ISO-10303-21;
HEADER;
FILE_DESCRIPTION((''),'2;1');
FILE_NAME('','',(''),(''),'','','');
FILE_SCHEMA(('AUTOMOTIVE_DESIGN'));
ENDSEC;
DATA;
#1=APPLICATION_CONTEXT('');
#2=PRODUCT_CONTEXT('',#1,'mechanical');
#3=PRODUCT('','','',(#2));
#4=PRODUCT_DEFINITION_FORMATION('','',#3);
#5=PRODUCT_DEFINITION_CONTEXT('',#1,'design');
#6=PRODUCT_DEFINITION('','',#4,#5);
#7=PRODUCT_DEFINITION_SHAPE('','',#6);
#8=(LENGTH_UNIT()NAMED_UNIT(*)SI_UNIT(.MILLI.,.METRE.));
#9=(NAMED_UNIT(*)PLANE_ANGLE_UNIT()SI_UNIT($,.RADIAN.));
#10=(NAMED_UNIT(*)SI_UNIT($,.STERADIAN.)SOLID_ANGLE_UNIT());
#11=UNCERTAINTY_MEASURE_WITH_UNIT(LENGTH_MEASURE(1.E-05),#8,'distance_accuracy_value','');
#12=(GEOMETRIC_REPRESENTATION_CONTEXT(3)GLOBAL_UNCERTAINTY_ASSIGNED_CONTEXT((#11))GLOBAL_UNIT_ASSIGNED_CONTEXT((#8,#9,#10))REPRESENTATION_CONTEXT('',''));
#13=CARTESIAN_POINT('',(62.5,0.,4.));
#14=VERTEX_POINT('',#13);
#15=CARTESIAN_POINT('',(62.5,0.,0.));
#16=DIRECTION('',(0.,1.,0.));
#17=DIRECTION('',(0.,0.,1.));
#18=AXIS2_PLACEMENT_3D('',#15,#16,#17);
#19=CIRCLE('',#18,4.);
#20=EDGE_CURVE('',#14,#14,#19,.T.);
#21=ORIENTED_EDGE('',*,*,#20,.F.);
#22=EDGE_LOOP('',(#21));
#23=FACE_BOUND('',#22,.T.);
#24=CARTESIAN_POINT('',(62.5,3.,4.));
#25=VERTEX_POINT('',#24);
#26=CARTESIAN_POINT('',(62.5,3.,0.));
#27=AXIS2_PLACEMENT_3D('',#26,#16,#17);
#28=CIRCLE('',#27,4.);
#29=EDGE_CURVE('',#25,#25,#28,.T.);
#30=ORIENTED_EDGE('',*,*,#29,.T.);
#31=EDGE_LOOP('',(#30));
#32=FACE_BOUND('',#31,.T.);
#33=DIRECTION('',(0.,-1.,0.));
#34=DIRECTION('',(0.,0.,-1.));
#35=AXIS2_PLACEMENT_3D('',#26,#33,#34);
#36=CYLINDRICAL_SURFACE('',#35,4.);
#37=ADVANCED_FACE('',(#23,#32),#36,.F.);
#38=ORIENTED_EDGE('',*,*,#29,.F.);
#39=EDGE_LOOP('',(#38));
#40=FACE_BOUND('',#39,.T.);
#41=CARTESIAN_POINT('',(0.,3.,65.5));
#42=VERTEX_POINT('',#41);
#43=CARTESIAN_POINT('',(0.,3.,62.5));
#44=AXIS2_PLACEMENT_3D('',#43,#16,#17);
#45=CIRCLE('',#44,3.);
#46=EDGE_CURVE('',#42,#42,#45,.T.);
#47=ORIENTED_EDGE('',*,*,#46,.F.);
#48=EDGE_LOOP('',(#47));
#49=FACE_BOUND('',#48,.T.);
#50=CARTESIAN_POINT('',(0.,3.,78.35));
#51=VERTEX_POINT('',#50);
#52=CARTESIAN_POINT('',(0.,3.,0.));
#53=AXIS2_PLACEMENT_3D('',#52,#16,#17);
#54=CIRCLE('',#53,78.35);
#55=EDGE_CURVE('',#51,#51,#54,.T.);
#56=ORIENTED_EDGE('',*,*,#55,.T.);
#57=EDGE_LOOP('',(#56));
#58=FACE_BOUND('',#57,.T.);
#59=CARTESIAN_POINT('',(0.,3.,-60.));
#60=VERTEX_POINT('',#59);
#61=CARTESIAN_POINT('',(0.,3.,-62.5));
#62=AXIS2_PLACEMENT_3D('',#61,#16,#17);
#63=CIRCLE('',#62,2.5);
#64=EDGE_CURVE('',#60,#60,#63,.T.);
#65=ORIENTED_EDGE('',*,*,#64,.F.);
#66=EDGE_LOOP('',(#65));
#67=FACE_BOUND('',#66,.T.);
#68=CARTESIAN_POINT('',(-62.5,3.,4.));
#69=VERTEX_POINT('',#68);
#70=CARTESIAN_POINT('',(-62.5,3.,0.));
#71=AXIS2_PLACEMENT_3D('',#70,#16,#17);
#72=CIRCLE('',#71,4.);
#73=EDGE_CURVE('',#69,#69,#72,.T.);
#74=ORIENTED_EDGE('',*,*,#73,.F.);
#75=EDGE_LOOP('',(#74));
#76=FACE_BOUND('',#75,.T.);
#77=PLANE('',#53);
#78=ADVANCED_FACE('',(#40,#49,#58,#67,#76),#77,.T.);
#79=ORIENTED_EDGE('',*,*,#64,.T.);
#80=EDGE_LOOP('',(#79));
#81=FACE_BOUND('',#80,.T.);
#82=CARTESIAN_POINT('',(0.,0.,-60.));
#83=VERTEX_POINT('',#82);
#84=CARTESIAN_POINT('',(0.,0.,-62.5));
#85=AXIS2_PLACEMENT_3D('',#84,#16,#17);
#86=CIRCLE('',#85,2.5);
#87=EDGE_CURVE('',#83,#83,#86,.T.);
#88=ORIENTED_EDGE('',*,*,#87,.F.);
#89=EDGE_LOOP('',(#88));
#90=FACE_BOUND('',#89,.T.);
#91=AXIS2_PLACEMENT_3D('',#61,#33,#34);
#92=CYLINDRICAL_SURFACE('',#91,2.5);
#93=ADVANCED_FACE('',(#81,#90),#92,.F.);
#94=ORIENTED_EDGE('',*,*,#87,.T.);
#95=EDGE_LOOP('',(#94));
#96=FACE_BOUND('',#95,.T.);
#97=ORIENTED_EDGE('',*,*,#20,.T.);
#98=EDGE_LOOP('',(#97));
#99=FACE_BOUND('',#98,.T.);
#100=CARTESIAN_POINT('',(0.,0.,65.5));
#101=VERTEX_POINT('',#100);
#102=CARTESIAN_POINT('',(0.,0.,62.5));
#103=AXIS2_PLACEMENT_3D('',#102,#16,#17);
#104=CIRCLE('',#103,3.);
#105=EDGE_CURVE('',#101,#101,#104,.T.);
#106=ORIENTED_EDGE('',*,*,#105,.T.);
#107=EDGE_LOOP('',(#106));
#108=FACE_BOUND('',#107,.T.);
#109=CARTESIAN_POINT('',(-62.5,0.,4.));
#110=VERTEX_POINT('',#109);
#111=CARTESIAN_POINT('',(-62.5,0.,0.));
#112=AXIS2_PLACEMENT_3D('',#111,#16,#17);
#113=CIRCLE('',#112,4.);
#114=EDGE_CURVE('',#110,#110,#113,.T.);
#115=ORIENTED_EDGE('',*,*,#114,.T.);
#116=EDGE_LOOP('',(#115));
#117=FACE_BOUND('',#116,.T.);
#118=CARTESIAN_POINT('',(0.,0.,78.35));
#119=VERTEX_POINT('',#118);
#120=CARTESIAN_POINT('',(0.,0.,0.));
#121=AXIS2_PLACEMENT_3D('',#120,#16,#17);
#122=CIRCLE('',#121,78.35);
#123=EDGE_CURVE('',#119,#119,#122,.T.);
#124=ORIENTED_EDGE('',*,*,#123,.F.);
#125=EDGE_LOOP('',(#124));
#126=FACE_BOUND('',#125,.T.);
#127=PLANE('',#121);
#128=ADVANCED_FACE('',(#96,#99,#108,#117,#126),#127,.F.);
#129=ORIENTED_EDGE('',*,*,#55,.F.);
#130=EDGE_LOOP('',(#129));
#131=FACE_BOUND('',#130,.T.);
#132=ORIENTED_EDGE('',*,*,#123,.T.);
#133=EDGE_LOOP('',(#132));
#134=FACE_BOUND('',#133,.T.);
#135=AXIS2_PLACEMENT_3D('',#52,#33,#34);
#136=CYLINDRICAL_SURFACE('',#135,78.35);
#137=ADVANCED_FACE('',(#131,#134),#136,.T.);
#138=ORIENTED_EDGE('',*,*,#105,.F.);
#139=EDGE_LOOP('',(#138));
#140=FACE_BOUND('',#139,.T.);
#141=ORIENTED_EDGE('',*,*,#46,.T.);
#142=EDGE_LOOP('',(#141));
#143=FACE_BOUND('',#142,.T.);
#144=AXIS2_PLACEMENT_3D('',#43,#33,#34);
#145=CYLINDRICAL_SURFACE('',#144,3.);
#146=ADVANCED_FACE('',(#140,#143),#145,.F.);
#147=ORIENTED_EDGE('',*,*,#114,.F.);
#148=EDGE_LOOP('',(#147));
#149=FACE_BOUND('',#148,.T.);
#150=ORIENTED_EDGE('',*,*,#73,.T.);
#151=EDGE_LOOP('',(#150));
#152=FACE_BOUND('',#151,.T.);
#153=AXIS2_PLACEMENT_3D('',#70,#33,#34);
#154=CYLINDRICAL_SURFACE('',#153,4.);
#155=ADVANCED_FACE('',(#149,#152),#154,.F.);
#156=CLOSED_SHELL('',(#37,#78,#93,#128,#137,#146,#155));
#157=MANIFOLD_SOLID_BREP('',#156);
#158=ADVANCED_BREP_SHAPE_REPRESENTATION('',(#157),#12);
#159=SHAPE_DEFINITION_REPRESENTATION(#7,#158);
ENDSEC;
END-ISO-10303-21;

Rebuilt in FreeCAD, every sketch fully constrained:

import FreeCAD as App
import Part
import Sketcher
Q = App.Units.Quantity

doc = App.newDocument("Part")
body = doc.addObject("PartDesign::Body", "Body")

# Sketch on XZ plane
sketch1 = body.newObject("Sketcher::SketchObject", "Sketch")
sketch1.AttachmentSupport = (doc.getObject("XZ_Plane"), [""])
sketch1.MapMode = "FlatFace"
sketch1.addGeometry(Part.Circle(App.Vector(0, 0, 0), App.Vector(0, 0, 1), 78.3), False)
sketch1.addGeometry(Part.Circle(App.Vector(-62.5, 0, 0), App.Vector(0, 0, 1), 4), False)
sketch1.addGeometry(Part.Circle(App.Vector(0, -62.5, 0), App.Vector(0, 0, 1), 2.5), False)
sketch1.addGeometry(Part.Circle(App.Vector(62.5, 0, 0), App.Vector(0, 0, 1), 4), False)
sketch1.addGeometry(Part.Circle(App.Vector(0, 62.5, 0), App.Vector(0, 0, 1), 3), False)
sketch1.addConstraint(Sketcher.Constraint("Coincident", 0, 3, -1, 1))
sketch1.addConstraint(Sketcher.Constraint("Equal", 1, 3))
sketch1.addConstraint(Sketcher.Constraint("Symmetric", 1, 3, 3, 3, -1, 1))
sketch1.addConstraint(Sketcher.Constraint("Symmetric", 2, 3, 4, 3, -1, 1))
sketch1.addConstraint(Sketcher.Constraint("PointOnObject", 1, 3, -1))
sketch1.addConstraint(Sketcher.Constraint("PointOnObject", 2, 3, -2))
sketch1.addConstraint(Sketcher.Constraint("Diameter", 1, Q("8 mm")))
sketch1.addConstraint(Sketcher.Constraint("Diameter", 2, Q("5 mm")))
sketch1.addConstraint(Sketcher.Constraint("Diameter", 4, Q("6 mm")))
sketch1.addConstraint(Sketcher.Constraint("Diameter", 0, Q("156.7 mm")))
sketch1.addConstraint(Sketcher.Constraint("DistanceX", 1, 3, 3, 3, Q("125 mm")))
sketch1.addConstraint(Sketcher.Constraint("DistanceY", 2, 3, 4, 3, Q("125 mm")))
pad1 = body.newObject("PartDesign::Pad", "Pad")
pad1.Profile = sketch1
pad1.Length = 3
pad1.Reversed = True

doc.recompute()
